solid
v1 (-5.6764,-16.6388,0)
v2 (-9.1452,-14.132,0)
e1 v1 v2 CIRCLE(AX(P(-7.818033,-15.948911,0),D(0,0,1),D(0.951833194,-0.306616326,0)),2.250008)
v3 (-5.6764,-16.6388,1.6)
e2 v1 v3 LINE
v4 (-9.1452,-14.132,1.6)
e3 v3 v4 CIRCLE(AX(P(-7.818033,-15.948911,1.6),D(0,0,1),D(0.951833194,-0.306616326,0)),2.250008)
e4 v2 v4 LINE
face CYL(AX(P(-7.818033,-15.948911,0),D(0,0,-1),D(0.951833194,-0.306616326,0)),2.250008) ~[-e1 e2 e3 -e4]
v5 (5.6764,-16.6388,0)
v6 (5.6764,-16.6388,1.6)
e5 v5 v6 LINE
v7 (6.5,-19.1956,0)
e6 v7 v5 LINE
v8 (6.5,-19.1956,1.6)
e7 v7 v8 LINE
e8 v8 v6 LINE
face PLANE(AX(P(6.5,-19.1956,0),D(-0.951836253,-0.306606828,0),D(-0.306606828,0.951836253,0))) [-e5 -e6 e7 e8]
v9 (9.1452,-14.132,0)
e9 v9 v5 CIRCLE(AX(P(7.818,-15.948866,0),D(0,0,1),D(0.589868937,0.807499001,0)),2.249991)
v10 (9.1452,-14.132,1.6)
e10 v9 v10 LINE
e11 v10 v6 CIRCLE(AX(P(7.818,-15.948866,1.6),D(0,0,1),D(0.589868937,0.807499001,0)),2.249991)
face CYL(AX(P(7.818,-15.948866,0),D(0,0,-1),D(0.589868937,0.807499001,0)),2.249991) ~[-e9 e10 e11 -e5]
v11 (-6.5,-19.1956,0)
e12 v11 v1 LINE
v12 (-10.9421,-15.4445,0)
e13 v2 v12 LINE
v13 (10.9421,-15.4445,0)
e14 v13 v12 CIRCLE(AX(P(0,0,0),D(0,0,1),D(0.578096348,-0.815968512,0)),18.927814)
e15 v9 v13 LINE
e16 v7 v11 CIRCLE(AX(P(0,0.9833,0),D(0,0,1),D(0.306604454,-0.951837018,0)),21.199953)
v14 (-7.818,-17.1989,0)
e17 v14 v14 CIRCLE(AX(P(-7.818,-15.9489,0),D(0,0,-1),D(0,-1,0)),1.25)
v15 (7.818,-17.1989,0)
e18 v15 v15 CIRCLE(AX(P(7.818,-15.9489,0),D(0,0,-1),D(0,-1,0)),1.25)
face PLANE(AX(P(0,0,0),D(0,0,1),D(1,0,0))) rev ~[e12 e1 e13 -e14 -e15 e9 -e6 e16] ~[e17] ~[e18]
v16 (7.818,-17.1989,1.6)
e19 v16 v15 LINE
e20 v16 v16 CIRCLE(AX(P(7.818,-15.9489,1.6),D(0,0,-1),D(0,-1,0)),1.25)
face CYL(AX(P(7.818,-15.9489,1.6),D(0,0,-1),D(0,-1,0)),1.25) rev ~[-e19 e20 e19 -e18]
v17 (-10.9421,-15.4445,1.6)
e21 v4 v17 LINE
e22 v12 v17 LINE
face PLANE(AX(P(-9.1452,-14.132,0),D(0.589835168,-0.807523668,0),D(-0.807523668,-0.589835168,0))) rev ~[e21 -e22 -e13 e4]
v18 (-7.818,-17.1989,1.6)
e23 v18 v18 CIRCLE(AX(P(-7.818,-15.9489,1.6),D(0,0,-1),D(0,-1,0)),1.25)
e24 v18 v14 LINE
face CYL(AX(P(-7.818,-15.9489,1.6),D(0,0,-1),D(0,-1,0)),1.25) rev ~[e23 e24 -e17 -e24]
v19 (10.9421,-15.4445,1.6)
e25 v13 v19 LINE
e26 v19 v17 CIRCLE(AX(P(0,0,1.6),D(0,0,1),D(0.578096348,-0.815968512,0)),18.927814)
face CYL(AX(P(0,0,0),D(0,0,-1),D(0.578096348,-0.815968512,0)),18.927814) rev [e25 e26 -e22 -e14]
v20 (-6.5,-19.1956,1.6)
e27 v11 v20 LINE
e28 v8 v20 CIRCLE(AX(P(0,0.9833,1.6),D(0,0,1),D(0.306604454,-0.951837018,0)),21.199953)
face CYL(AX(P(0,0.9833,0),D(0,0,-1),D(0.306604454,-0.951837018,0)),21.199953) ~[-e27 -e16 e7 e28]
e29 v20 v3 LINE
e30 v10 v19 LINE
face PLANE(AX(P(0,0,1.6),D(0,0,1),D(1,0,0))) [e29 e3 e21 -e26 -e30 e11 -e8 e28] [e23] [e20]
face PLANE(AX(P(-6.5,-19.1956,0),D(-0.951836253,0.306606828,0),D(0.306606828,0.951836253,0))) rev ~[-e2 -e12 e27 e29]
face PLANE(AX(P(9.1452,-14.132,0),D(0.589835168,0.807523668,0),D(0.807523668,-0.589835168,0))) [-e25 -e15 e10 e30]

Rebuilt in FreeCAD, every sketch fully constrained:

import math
import FreeCAD as App
import Part
import Sketcher
from FreeCAD import Vector

doc = App.newDocument("Part")
params = doc.addObject("Spreadsheet::Sheet", "Params")
for row, (alias, value) in enumerate([
    ("sketch1_radius", "21.2 mm"),
    ("sketch1_radius2", "2.25 mm"),
    ("pad1_length", "1.6 mm"),
    ("sketch2_diameter", "2.5 mm"),
    ("hole_diameter", "2.5 mm"),
    ("sketch3_diameter", "2.5 mm"),
    ("hole2_diameter", "2.5 mm"),
], start=1):
    params.set(f"A{row}", alias)
    params.set(f"B{row}", "=" + value)
    params.setAlias(f"B{row}", alias)

body = doc.addObject("PartDesign::Body", "Body")

sketch1 = body.newObject("Sketcher::SketchObject", "Sketch")
sketch1.AttachmentSupport = (doc.getObject("XY_Plane"), [""])
sketch1.MapMode = "FlatFace"
sketch1.addGeometry([
    Part.LineSegment(Vector(5.7, -16.6, 0), Vector(6.5, -19.2, 0)),
    Part.ArcOfCircle(Part.Circle(Vector(0, 1, 0), Vector(0, 0, 1), 21.2), math.radians(-72), math.radians(252)),
    Part.LineSegment(Vector(-6.5, -19.2, 0), Vector(-5.7, -16.6, 0)),
    Part.ArcOfCircle(Part.Circle(Vector(-7.8, -15.9, 0), Vector(0, 0, 1), 2.2), math.radians(-18), math.radians(126)),
    Part.LineSegment(Vector(-9.1, -14.1, 0), Vector(-10.9, -15.4, 0)),
    Part.ArcOfCircle(Part.Circle(Vector(0, 0, 0), Vector(0, 0, 1), 18.9), math.radians(-55), math.radians(235)),
    Part.LineSegment(Vector(10.9, -15.4, 0), Vector(9.1, -14.1, 0)),
    Part.ArcOfCircle(Part.Circle(Vector(7.8, -15.9, 0), Vector(0, 0, 1), 2.3), math.radians(54), math.radians(198)),
], False)
sketch1.addConstraint([
    Sketcher.Constraint("Coincident", 0, 2, 1, 1),
    Sketcher.Constraint("Coincident", 1, 2, 2, 1),
    Sketcher.Constraint("Tangent", 2, 2, 3, 1),
    Sketcher.Constraint("Tangent", 3, 2, 4, 1),
    Sketcher.Constraint("Coincident", 4, 2, 5, 2),
    Sketcher.Constraint("Coincident", 5, 1, 6, 1),
    Sketcher.Constraint("Tangent", 6, 2, 7, 1),
    Sketcher.Constraint("Tangent", 7, 2, 0, 1),
    Sketcher.Constraint("Coincident", 5, 3, -1, 1),
    Sketcher.Constraint("Equal", 3, 7),
    Sketcher.Constraint("Symmetric", 3, 3, 7, 3, -2),
    Sketcher.Constraint("Symmetric", 0, 2, 1, 2, -2),
    Sketcher.Constraint("Horizontal", 4, 2, 5, 1),
    Sketcher.Constraint("Radius", 1, 21.2),
    Sketcher.Constraint("Radius", 3, 2.25),
    Sketcher.Constraint("DistanceX", -1, 1, 0, 2, 6.5),
    Sketcher.Constraint("Radius", 5, 18.9278),
    Sketcher.Constraint("DistanceY", -1, 1, 1, 3, 0.9833),
    Sketcher.Constraint("DistanceY", 2, 2, 3, 3, 0.69),
    Sketcher.Constraint("DistanceX", 3, 3, 5, 1, 18.76),
    Sketcher.Constraint("DistanceX", 3, 3, -1, 1, 7.818),
])
sketch1.setExpression("Constraints[13]", "Params.sketch1_radius")
sketch1.setExpression("Constraints[14]", "Params.sketch1_radius2")
pad1 = body.newObject("PartDesign::Pad", "Pad")
pad1.Profile = sketch1
pad1.setExpression("Length", "Params.pad1_length")

sketch2 = body.newObject("Sketcher::SketchObject", "Sketch001")
sketch2.AttachmentSupport = (doc.getObject("XY_Plane"), [""])
sketch2.MapMode = "FlatFace"
sketch2.AttachmentOffset = App.Placement(Vector(0, 0, 1.6), App.Rotation())
sketch2.addGeometry(Part.Circle(Vector(-7.8, -15.9, 0), Vector(0, 0, 1), 1.2), False)
sketch2.addConstraint([
    Sketcher.Constraint("Diameter", 0, 2.5),
    Sketcher.Constraint("DistanceX", 0, 3, -1, 1, 7.818),
    Sketcher.Constraint("DistanceY", 0, 3, -1, 1, 15.949),
])
sketch2.setExpression("Constraints[0]", "Params.sketch2_diameter")
doc.recompute()
hole = body.newObject("PartDesign::Hole", "Hole")
hole.Profile = sketch2
hole.ThreadType = "None"
hole.setExpression("Diameter", "Params.hole_diameter")
hole.DepthType = "ThroughAll"

sketch3 = body.newObject("Sketcher::SketchObject", "Sketch002")
sketch3.AttachmentSupport = (doc.getObject("XY_Plane"), [""])
sketch3.MapMode = "FlatFace"
sketch3.AttachmentOffset = App.Placement(Vector(0, 0, 1.6), App.Rotation())
sketch3.addGeometry(Part.Circle(Vector(7.8, -15.9, 0), Vector(0, 0, 1), 1.2), False)
sketch3.addConstraint([
    Sketcher.Constraint("Diameter", 0, 2.5),
    Sketcher.Constraint("DistanceX", -1, 1, 0, 3, 7.818),
    Sketcher.Constraint("DistanceY", 0, 3, -1, 1, 15.949),
])
sketch3.setExpression("Constraints[0]", "Params.sketch3_diameter")
doc.recompute()
hole2 = body.newObject("PartDesign::Hole", "Hole001")
hole2.Profile = sketch3
hole2.ThreadType = "None"
hole2.setExpression("Diameter", "Params.hole2_diameter")
hole2.DepthType = "ThroughAll"

doc.recompute()
